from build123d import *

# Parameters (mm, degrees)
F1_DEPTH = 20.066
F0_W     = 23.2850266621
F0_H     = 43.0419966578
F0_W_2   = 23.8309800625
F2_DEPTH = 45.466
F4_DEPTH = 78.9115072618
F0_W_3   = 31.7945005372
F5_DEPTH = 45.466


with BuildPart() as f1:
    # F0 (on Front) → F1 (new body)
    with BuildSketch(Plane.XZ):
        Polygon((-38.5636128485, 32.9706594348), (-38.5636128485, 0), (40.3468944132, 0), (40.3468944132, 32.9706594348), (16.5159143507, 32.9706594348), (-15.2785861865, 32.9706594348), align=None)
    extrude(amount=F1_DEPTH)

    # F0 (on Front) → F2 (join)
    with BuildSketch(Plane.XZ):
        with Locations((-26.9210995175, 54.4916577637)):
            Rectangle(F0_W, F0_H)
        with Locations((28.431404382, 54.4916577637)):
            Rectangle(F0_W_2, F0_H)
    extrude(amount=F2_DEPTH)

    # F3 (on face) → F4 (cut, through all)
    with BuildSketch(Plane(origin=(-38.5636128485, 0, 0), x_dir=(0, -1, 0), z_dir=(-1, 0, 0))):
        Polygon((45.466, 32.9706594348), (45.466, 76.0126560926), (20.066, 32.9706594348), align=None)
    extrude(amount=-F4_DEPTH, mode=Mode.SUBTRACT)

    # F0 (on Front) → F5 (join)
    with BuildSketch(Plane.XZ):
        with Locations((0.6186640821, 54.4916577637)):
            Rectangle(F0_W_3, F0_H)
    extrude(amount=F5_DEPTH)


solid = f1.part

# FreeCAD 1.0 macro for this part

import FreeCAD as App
import Part
import Sketcher
Q = App.Units.Quantity

doc = App.newDocument("Part")
body = doc.addObject("PartDesign::Body", "Body")

# Sketch on XZ plane
sketch1 = body.newObject("Sketcher::SketchObject", "Sketch")
sketch1.AttachmentSupport = (doc.getObject("XZ_Plane"), [""])
sketch1.MapMode = "FlatFace"
sketch1.addGeometry([
    Part.LineSegment(App.Vector(-39, 33, 0), App.Vector(-39, 0, 0)),
    Part.LineSegment(App.Vector(-39, 0, 0), App.Vector(40, 0, 0)),
    Part.LineSegment(App.Vector(40, 0, 0), App.Vector(40, 33, 0)),
    Part.LineSegment(App.Vector(40, 33, 0), App.Vector(-39, 33, 0)),
], False)
sketch1.addConstraint([
    Sketcher.Constraint("Coincident", 0, 2, 1, 1),
    Sketcher.Constraint("Coincident", 1, 2, 2, 1),
    Sketcher.Constraint("Coincident", 2, 2, 3, 1),
    Sketcher.Constraint("Coincident", 3, 2, 0, 1),
    Sketcher.Constraint("Vertical", 0),
    Sketcher.Constraint("Horizontal", 1),
    Sketcher.Constraint("Vertical", 2),
    Sketcher.Constraint("Horizontal", 3),
    Sketcher.Constraint("PointOnObject", 0, 2, -1),
    Sketcher.Constraint("DistanceY", 0, 2, 0, 1, Q("32.970659 mm")),
    Sketcher.Constraint("DistanceX", 1, 1, 1, 2, Q("78.910507 mm")),
    Sketcher.Constraint("DistanceX", 0, 2, -1, 1, Q("38.563613 mm")),
])
pad1 = body.newObject("PartDesign::Pad", "Pad")
pad1.Profile = sketch1
pad1.Length = Q("0.79 in")

# Sketch on XZ plane
sketch2 = body.newObject("Sketcher::SketchObject", "Sketch001")
sketch2.AttachmentSupport = (doc.getObject("XZ_Plane"), [""])
sketch2.MapMode = "FlatFace"
sketch2.addGeometry([
    Part.LineSegment(App.Vector(-39, 76, 0), App.Vector(-39, 33, 0)),  # 0
    Part.LineSegment(App.Vector(-39, 33, 0), App.Vector(-15, 33, 0)),  # 1
    Part.LineSegment(App.Vector(-15, 33, 0), App.Vector(-15, 76, 0)),  # 2
    Part.LineSegment(App.Vector(-15, 76, 0), App.Vector(-39, 76, 0)),  # 3
    Part.LineSegment(App.Vector(17, 76, 0), App.Vector(17, 33, 0)),  # 4
    Part.LineSegment(App.Vector(17, 33, 0), App.Vector(40, 33, 0)),  # 5
    Part.LineSegment(App.Vector(40, 33, 0), App.Vector(40, 76, 0)),  # 6
    Part.LineSegment(App.Vector(40, 76, 0), App.Vector(17, 76, 0)),  # 7
], False)
sketch2.addConstraint([
    Sketcher.Constraint("Coincident", 0, 2, 1, 1),
    Sketcher.Constraint("Coincident", 1, 2, 2, 1),
    Sketcher.Constraint("Coincident", 2, 2, 3, 1),
    Sketcher.Constraint("Coincident", 3, 2, 0, 1),
    Sketcher.Constraint("Coincident", 4, 2, 5, 1),
    Sketcher.Constraint("Coincident", 5, 2, 6, 1),
    Sketcher.Constraint("Coincident", 6, 2, 7, 1),
    Sketcher.Constraint("Coincident", 7, 2, 4, 1),
    Sketcher.Constraint("Vertical", 0),
    Sketcher.Constraint("Horizontal", 1),
    Sketcher.Constraint("Vertical", 2),
    Sketcher.Constraint("Horizontal", 3),
    Sketcher.Constraint("Vertical", 4),
    Sketcher.Constraint("Horizontal", 5),
    Sketcher.Constraint("Vertical", 6),
    Sketcher.Constraint("Horizontal", 7),
    Sketcher.Constraint("Horizontal", 1, 2, 4, 2),
    Sketcher.Constraint("Horizontal", 3, 2, 6, 2),
    Sketcher.Constraint("DistanceX", 5, 1, 5, 2, Q("23.83098 mm")),
    Sketcher.Constraint("DistanceX", 1, 2, 4, 2, Q("31.794501 mm")),
    Sketcher.Constraint("DistanceX", 1, 1, 1, 2, Q("23.285027 mm")),
    Sketcher.Constraint("DistanceY", 0, 2, 0, 1, Q("43.041997 mm")),
    Sketcher.Constraint("DistanceY", -1, 1, 0, 2, Q("32.970659 mm")),
    Sketcher.Constraint("DistanceX", 0, 2, -1, 1, Q("38.563613 mm")),
])
pad2 = body.newObject("PartDesign::Pad", "Pad001")
pad2.Profile = sketch2
pad2.Length = Q("1.79 in")

# Sketch on YZ plane
sketch3 = body.newObject("Sketcher::SketchObject", "Sketch002")
sketch3.AttachmentSupport = (doc.getObject("YZ_Plane"), [""])
sketch3.MapMode = "FlatFace"
sketch3.AttachmentOffset = App.Placement(App.Vector(0, 0, -38.563613), App.Rotation())
sketch3.addGeometry([
    Part.LineSegment(App.Vector(-45, 33, 0), App.Vector(-45, 76, 0)),
    Part.LineSegment(App.Vector(-45, 76, 0), App.Vector(-20, 33, 0)),
    Part.LineSegment(App.Vector(-20, 33, 0), App.Vector(-45, 33, 0)),
], False)
sketch3.addConstraint([
    Sketcher.Constraint("Coincident", 0, 2, 1, 1),
    Sketcher.Constraint("Coincident", 1, 2, 2, 1),
    Sketcher.Constraint("Coincident", 2, 2, 0, 1),
    Sketcher.Constraint("Vertical", 0),
    Sketcher.Constraint("Horizontal", 2),
    Sketcher.Constraint("DistanceX", 2, 2, 2, 1, Q("1 in")),
    Sketcher.Constraint("DistanceX", 0, 2, -1, 1, Q("1.79 in")),
    Sketcher.Constraint("Distance", 1, Q("49.97773 mm")),
    Sketcher.Constraint("DistanceY", -1, 1, 1, 2, Q("32.970659 mm")),
])
pocket1 = body.newObject("PartDesign::Pocket", "Pocket")
pocket1.Profile = sketch3
pocket1.Type = "ThroughAll"
pocket1.Reversed = True

# Sketch on XZ plane
sketch4 = body.newObject("Sketcher::SketchObject", "Sketch003")
sketch4.AttachmentSupport = (doc.getObject("XZ_Plane"), [""])
sketch4.MapMode = "FlatFace"
sketch4.addGeometry([
    Part.LineSegment(App.Vector(-15, 76, 0), App.Vector(-15, 33, 0)),
    Part.LineSegment(App.Vector(-15, 33, 0), App.Vector(17, 33, 0)),
    Part.LineSegment(App.Vector(17, 33, 0), App.Vector(17, 76, 0)),
    Part.LineSegment(App.Vector(17, 76, 0), App.Vector(-15, 76, 0)),
], False)
sketch4.addConstraint([
    Sketcher.Constraint("Coincident", 0, 2, 1, 1),
    Sketcher.Constraint("Coincident", 1, 2, 2, 1),
    Sketcher.Constraint("Coincident", 2, 2, 3, 1),
    Sketcher.Constraint("Coincident", 3, 2, 0, 1),
    Sketcher.Constraint("Vertical", 0),
    Sketcher.Constraint("Horizontal", 1),
    Sketcher.Constraint("Vertical", 2),
    Sketcher.Constraint("Horizontal", 3),
    Sketcher.Constraint("DistanceX", 1, 1, 1, 2, Q("31.794501 mm")),
    Sketcher.Constraint("DistanceY", 0, 2, 0, 1, Q("43.041997 mm")),
    Sketcher.Constraint("DistanceY", -1, 1, 0, 2, Q("32.970659 mm")),
    Sketcher.Constraint("DistanceX", 0, 2, -1, 1, Q("15.278586 mm")),
])
pad3 = body.newObject("PartDesign::Pad", "Pad002")
pad3.Profile = sketch4
pad3.Length = Q("1.79 in")

doc.recompute()
